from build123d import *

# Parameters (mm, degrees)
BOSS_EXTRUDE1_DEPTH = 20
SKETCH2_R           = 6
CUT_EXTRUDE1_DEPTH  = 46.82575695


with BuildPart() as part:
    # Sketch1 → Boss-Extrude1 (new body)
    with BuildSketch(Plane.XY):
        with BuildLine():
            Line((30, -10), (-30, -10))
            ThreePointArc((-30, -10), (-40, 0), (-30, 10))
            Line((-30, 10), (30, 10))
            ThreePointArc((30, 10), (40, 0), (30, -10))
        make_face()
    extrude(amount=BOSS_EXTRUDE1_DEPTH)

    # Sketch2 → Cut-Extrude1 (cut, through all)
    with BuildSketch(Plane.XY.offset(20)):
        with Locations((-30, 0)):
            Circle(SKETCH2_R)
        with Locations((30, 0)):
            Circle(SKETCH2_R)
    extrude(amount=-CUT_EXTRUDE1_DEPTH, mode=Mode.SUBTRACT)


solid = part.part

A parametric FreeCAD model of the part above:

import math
import FreeCAD as App
import Part
import Sketcher

V = App.Vector

doc = App.newDocument("Part")
params = doc.addObject("Spreadsheet::Sheet", "Params")
for row, (alias, value) in enumerate([
    ("sketch1_radius", "10 mm"),
    ("sketch1_width", "60 mm"),
    ("pad1_length", "20 mm"),
    ("sketch2_diameter", "12 mm"),
], start=1):
    params.set(f"A{row}", alias)
    params.set(f"B{row}", "=" + value)
    params.setAlias(f"B{row}", alias)

body = doc.addObject("PartDesign::Body", "Body")

sketch1 = doc.addObject("Sketcher::SketchObject", "Sketch")
body.addObject(sketch1)
sketch1.AttachmentSupport = (doc.XY_Plane, [""])
sketch1.MapMode = "FlatFace"
sketch1.addGeometry([
    Part.LineSegment(V(-30, -10, 0), V(30, -10, 0)),
    Part.ArcOfCircle(Part.Circle(V(30, 0, 0), V(0, 0, 1), 10), math.radians(-90), math.radians(90)),
    Part.LineSegment(V(30, 10, 0), V(-30, 10, 0)),
    Part.ArcOfCircle(Part.Circle(V(-30, 0, 0), V(0, 0, 1), 10), math.radians(90), math.radians(270)),
], False)
sketch1.addConstraint([
    Sketcher.Constraint("Tangent", 0, 2, 1, 1),
    Sketcher.Constraint("Tangent", 1, 2, 2, 1),
    Sketcher.Constraint("Tangent", 2, 2, 3, 1),
    Sketcher.Constraint("Tangent", 3, 2, 0, 1),
    Sketcher.Constraint("Horizontal", 0),
    Sketcher.Constraint("Horizontal", 2),
    Sketcher.Constraint("Symmetric", 1, 3, 3, 3, -1, 1),
    Sketcher.Constraint("Radius", 1, 10.0),
    Sketcher.Constraint("DistanceX", 0, 1, 0, 2, 60.0),
])
sketch1.setExpression("Constraints[7]", "Params.sketch1_radius")
sketch1.setExpression("Constraints[8]", "Params.sketch1_width")
pad1 = doc.addObject("PartDesign::Pad", "Pad")
body.addObject(pad1)
pad1.Profile = sketch1
pad1.setExpression("Length", "Params.pad1_length")

sketch2 = doc.addObject("Sketcher::SketchObject", "Sketch001")
body.addObject(sketch2)
sketch2.AttachmentSupport = (doc.XY_Plane, [""])
sketch2.MapMode = "FlatFace"
sketch2.AttachmentOffset = App.Placement(V(0, 0, 20), App.Rotation())
sketch2.addGeometry([
    Part.Circle(V(-30, 0, 0), V(0, 0, 1), 6),
    Part.Circle(V(30, 0, 0), V(0, 0, 1), 6),
], False)
sketch2.addConstraint([
    Sketcher.Constraint("Equal", 0, 1),
    Sketcher.Constraint("Symmetric", 0, 3, 1, 3, -1, 1),
    Sketcher.Constraint("PointOnObject", 0, 3, -1),
    Sketcher.Constraint("Diameter", 0, 12.0),
    Sketcher.Constraint("DistanceX", 0, 3, -1, 1, 30.0),
])
sketch2.setExpression("Constraints[3]", "Params.sketch2_diameter")
pocket1 = doc.addObject("PartDesign::Pocket", "Pocket")
body.addObject(pocket1)
pocket1.Profile = sketch2
pocket1.Type = "ThroughAll"

doc.recompute()
